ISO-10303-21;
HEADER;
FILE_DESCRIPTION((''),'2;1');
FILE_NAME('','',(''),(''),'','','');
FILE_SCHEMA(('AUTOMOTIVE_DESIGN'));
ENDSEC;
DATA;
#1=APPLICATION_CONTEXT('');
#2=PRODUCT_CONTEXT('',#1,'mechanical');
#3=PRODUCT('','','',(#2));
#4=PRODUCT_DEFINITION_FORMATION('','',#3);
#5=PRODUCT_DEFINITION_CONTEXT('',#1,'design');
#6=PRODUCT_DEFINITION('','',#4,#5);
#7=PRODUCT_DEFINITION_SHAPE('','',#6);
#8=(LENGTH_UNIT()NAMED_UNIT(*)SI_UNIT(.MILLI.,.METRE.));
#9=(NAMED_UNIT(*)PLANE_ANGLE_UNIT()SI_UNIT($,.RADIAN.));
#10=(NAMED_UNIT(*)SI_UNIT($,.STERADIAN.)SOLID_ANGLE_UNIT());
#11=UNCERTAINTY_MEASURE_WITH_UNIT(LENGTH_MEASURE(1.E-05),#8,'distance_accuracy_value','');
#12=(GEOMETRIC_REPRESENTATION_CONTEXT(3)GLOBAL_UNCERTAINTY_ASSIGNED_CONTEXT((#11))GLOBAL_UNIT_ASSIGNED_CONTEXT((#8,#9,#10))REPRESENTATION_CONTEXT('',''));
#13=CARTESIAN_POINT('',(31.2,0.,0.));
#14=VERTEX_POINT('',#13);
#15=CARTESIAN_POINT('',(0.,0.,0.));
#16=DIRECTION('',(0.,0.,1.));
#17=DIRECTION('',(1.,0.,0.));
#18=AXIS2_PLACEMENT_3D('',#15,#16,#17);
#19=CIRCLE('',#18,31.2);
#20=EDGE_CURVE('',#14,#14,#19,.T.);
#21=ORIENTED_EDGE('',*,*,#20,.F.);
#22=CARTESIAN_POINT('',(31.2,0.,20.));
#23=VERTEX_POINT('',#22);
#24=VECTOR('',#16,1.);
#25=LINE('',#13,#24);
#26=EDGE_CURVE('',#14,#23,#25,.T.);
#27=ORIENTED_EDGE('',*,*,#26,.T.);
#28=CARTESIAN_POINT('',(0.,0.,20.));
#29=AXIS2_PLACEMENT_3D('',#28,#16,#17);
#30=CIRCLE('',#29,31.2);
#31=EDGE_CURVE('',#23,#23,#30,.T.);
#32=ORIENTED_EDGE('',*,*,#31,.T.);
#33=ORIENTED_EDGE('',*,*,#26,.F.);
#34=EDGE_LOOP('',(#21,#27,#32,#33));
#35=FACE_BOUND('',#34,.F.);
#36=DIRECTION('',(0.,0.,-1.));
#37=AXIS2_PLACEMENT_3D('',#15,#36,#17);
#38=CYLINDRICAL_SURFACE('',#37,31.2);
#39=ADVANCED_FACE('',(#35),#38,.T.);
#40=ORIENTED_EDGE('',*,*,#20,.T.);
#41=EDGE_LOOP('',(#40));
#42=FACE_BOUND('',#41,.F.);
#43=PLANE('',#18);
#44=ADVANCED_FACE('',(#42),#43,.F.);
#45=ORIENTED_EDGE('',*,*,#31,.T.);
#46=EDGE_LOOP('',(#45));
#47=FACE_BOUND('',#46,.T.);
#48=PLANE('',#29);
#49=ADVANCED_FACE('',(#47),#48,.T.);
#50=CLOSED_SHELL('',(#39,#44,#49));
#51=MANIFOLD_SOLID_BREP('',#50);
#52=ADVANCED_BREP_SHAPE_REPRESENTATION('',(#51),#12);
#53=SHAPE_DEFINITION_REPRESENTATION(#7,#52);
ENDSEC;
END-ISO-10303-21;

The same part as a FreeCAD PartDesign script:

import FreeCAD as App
import Part
import Sketcher

V = App.Vector

doc = App.newDocument("Part")
body = doc.addObject("PartDesign::Body", "Body")

sketch1 = body.newObject("Sketcher::SketchObject", "Sketch")
sketch1.AttachmentSupport = (doc.getObject("XY_Plane"), [""])
sketch1.MapMode = "FlatFace"
sketch1.addGeometry(Part.Circle(V(0, 0, 0), V(0, 0, 1), 31), False)
sketch1.addConstraint(Sketcher.Constraint("Coincident", 0, 3, -1, 1))
sketch1.addConstraint(Sketcher.Constraint("Diameter", 0, 62.4))
pad1 = body.newObject("PartDesign::Pad", "Pad")
pad1.Profile = sketch1
pad1.Length = 20

doc.recompute()
